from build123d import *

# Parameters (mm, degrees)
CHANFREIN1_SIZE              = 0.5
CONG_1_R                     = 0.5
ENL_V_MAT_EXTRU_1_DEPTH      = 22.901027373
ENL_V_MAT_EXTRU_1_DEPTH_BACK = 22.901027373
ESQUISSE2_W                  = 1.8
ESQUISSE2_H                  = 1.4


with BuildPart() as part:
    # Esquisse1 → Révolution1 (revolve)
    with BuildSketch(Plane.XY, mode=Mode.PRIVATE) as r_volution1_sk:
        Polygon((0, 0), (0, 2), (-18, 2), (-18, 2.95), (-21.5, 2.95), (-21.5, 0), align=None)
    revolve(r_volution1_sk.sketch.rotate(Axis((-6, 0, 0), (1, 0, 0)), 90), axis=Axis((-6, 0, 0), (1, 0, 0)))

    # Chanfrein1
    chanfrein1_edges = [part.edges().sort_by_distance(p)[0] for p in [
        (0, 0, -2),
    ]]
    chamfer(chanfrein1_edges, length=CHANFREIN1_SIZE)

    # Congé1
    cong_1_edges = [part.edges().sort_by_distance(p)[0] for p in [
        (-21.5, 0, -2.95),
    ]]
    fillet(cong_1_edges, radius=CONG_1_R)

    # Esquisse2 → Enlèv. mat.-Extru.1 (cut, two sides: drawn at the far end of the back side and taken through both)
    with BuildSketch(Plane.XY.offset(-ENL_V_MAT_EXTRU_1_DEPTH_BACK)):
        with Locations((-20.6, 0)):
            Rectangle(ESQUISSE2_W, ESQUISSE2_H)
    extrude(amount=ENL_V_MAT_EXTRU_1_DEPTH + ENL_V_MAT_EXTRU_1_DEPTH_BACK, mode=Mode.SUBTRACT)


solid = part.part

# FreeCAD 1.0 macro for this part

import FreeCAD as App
import Part
import Sketcher
Q = App.Units.Quantity


def edges_at(feature, points):
    """Names of the edges that pass closest to the given points."""
    edges = feature.Shape.Edges
    near = lambda p: min(range(len(edges)), key=lambda i: edges[i].distToShape(Part.Vertex(*p))[0])
    return sorted({f"Edge{near(p) + 1}" for p in points})


def add_polygon(sketch, points):
    """Adds a closed chain of lines whose ends are joined by coincident constraints."""
    first, n = sketch.GeometryCount, len(points)
    for a, b in zip(points, points[1:] + points[:1]):
        sketch.addGeometry(Part.LineSegment(App.Vector(*a, 0), App.Vector(*b, 0)), False)
    for i in range(n):
        sketch.addConstraint(Sketcher.Constraint("Coincident", first + i, 2, first + (i + 1) % n, 1))

doc = App.newDocument("Part")
params = doc.addObject("Spreadsheet::Sheet", "Params")
for row, (alias, value) in enumerate([
    ("sketch1_width", "18 mm"),
    ("sketch1_height", "2 mm"),
    ("sketch1_width2", "3.5 mm"),
    ("sketch1_height2", "0.95 mm"),
    ("revolution_angle", "360 deg"),
    ("chamfer_size", "0.5 mm"),
    ("fillet_radius", "0.5 mm"),
    ("sketch2_width", "1.8 mm"),
    ("sketch2_height", "1.4 mm"),
], start=1):
    params.set(f"A{row}", alias)
    params.set(f"B{row}", "=" + value)
    params.setAlias(f"B{row}", alias)

body = doc.addObject("PartDesign::Body", "Body")

sketch1 = body.newObject("Sketcher::SketchObject", "Sketch")
sketch1.AttachmentSupport = (doc.getObject("XY_Plane"), [""])
sketch1.MapMode = "FlatFace"
add_polygon(sketch1, [(0, 0), (0, 2), (-18, 2), (-18, 2.95), (-21.5, 2.95), (-21.5, 0)])
sketch1.addConstraint(Sketcher.Constraint("Vertical", 0))
sketch1.addConstraint(Sketcher.Constraint("Horizontal", 1))
sketch1.addConstraint(Sketcher.Constraint("Vertical", 2))
sketch1.addConstraint(Sketcher.Constraint("Horizontal", 3))
sketch1.addConstraint(Sketcher.Constraint("Vertical", 4))
sketch1.addConstraint(Sketcher.Constraint("Horizontal", 5))
sketch1.addConstraint(Sketcher.Constraint("Coincident", 5, 2, -1, 1))
sketch1.addConstraint(Sketcher.Constraint("DistanceX", 1, 2, 1, 1, Q("18 mm")))
sketch1.addConstraint(Sketcher.Constraint("DistanceY", 0, 1, 0, 2, Q("2 mm")))
sketch1.addConstraint(Sketcher.Constraint("DistanceX", 3, 2, 3, 1, Q("3.5 mm")))
sketch1.addConstraint(Sketcher.Constraint("DistanceY", 2, 1, 2, 2, Q("0.95 mm")))
sketch1.setExpression("Constraints[13]", "Params.sketch1_width")
sketch1.setExpression("Constraints[14]", "Params.sketch1_height")
sketch1.setExpression("Constraints[15]", "Params.sketch1_width2")
sketch1.setExpression("Constraints[16]", "Params.sketch1_height2")
revolution = body.newObject("PartDesign::Revolution", "Revolution")
revolution.Profile = sketch1
revolution.ReferenceAxis = (sketch1, ["H_Axis"])
revolution.setExpression("Angle", "Params.revolution_angle")
doc.recompute()

chamfer = body.newObject("PartDesign::Chamfer", "Chamfer")
chamfer.Base = (revolution, edges_at(revolution, [(0, 0, -2)]))
chamfer.setExpression("Size", "Params.chamfer_size")
doc.recompute()

fillet = body.newObject("PartDesign::Fillet", "Fillet")
fillet.Base = (chamfer, edges_at(chamfer, [(-21.5, 0, -2.95)]))
fillet.setExpression("Radius", "Params.fillet_radius")

sketch2 = body.newObject("Sketcher::SketchObject", "Sketch001")
sketch2.AttachmentSupport = (doc.getObject("XY_Plane"), [""])
sketch2.MapMode = "FlatFace"
add_polygon(sketch2, [(-21.5, 0.7), (-21.5, -0.7), (-19.7, -0.7), (-19.7, 0.7)])
sketch2.addConstraint(Sketcher.Constraint("Vertical", 0))
sketch2.addConstraint(Sketcher.Constraint("Horizontal", 1))
sketch2.addConstraint(Sketcher.Constraint("Vertical", 2))
sketch2.addConstraint(Sketcher.Constraint("Horizontal", 3))
sketch2.addConstraint(Sketcher.Constraint("DistanceX", 1, 1, 1, 2, Q("1.8 mm")))
sketch2.addConstraint(Sketcher.Constraint("DistanceY", 0, 2, 0, 1, Q("1.4 mm")))
sketch2.addConstraint(Sketcher.Constraint("DistanceX", 0, 2, -1, 1, Q("21.5 mm")))
sketch2.addConstraint(Sketcher.Constraint("DistanceY", 0, 2, -1, 1, Q("0.7 mm")))
sketch2.setExpression("Constraints[8]", "Params.sketch2_width")
sketch2.setExpression("Constraints[9]", "Params.sketch2_height")
pocket1 = body.newObject("PartDesign::Pocket", "Pocket")
pocket1.Profile = sketch2
pocket1.Type = "ThroughAll"
pocket1.Midplane = True

doc.recompute()
